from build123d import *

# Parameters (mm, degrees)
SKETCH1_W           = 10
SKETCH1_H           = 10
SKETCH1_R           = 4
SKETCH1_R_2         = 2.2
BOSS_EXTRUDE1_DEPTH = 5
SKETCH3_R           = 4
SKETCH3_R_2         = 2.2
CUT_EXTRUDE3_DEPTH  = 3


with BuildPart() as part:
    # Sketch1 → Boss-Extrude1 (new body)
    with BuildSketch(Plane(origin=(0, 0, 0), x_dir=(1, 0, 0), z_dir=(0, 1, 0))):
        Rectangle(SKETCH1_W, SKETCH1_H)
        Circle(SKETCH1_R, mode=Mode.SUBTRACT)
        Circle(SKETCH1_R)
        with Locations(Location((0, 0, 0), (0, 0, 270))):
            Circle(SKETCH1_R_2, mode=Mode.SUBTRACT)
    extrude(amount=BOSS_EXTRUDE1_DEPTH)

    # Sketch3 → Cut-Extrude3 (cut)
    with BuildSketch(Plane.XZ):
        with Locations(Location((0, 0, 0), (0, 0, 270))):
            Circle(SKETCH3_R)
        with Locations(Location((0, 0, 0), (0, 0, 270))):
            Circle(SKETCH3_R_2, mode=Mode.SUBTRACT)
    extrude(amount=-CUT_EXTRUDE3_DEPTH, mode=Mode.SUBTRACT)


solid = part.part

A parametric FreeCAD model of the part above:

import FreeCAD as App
import Part
import Sketcher
Q = App.Units.Quantity


def add_polygon(sketch, points):
    """Adds a closed chain of lines whose ends are joined by coincident constraints."""
    first, n = sketch.GeometryCount, len(points)
    for a, b in zip(points, points[1:] + points[:1]):
        sketch.addGeometry(Part.LineSegment(App.Vector(*a, 0), App.Vector(*b, 0)), False)
    for i in range(n):
        sketch.addConstraint(Sketcher.Constraint("Coincident", first + i, 2, first + (i + 1) % n, 1))

doc = App.newDocument("Part")
params = doc.addObject("Spreadsheet::Sheet", "Params")
for row, (alias, value) in enumerate([
    ("sketch1_diameter", "4.4 mm"),
    ("sketch1_width", "10 mm"),
    ("pad1_length", "5 mm"),
    ("sketch2_diameter", "8 mm"),
    ("sketch2_diameter2", "4.4 mm"),
    ("pocket1_length", "3 mm"),
], start=1):
    params.set(f"A{row}", alias)
    params.set(f"B{row}", "=" + value)
    params.setAlias(f"B{row}", alias)

body = doc.addObject("PartDesign::Body", "Body")

# Sketch on XZ plane
sketch1 = body.newObject("Sketcher::SketchObject", "Sketch")
sketch1.AttachmentSupport = (doc.getObject("XZ_Plane"), [""])
sketch1.MapMode = "FlatFace"
add_polygon(sketch1, [(-5, -5), (-5, 5), (5, 5), (5, -5)])  # lines 0-3
sketch1.addGeometry(Part.Circle(App.Vector(0, 0, 0), App.Vector(0, 0, 1), 2.2), False)  # 4
sketch1.addConstraint(Sketcher.Constraint("Vertical", 0))
sketch1.addConstraint(Sketcher.Constraint("Horizontal", 1))
sketch1.addConstraint(Sketcher.Constraint("Vertical", 2))
sketch1.addConstraint(Sketcher.Constraint("Horizontal", 3))
sketch1.addConstraint(Sketcher.Constraint("Coincident", 4, 3, -1, 1))
sketch1.addConstraint(Sketcher.Constraint("Symmetric", 0, 2, 2, 2, -1, 1))
sketch1.addConstraint(Sketcher.Constraint("Equal", 3, 0))
sketch1.addConstraint(Sketcher.Constraint("Diameter", 4, Q("4.4 mm")))
sketch1.addConstraint(Sketcher.Constraint("DistanceX", 1, 1, 1, 2, Q("10 mm")))
sketch1.setExpression("Constraints[11]", "Params.sketch1_diameter")
sketch1.setExpression("Constraints[12]", "Params.sketch1_width")
pad1 = body.newObject("PartDesign::Pad", "Pad")
pad1.Profile = sketch1
pad1.setExpression("Length", "Params.pad1_length")
pad1.Reversed = True

# Sketch on XZ plane
sketch2 = body.newObject("Sketcher::SketchObject", "Sketch001")
sketch2.AttachmentSupport = (doc.getObject("XZ_Plane"), [""])
sketch2.MapMode = "FlatFace"
sketch2.addGeometry(Part.Circle(App.Vector(0, 0, 0), App.Vector(0, 0, 1), 4), False)
sketch2.addGeometry(Part.Circle(App.Vector(0, 0, 0), App.Vector(0, 0, 1), 2.2), False)
sketch2.addConstraint(Sketcher.Constraint("Coincident", 0, 3, -1, 1))
sketch2.addConstraint(Sketcher.Constraint("Coincident", 1, 3, -1, 1))
sketch2.addConstraint(Sketcher.Constraint("Diameter", 0, Q("8 mm")))
sketch2.addConstraint(Sketcher.Constraint("Diameter", 1, Q("4.4 mm")))
sketch2.setExpression("Constraints[2]", "Params.sketch2_diameter")
sketch2.setExpression("Constraints[3]", "Params.sketch2_diameter2")
pocket1 = body.newObject("PartDesign::Pocket", "Pocket")
pocket1.Profile = sketch2
pocket1.setExpression("Length", "Params.pocket1_length")

doc.recompute()
